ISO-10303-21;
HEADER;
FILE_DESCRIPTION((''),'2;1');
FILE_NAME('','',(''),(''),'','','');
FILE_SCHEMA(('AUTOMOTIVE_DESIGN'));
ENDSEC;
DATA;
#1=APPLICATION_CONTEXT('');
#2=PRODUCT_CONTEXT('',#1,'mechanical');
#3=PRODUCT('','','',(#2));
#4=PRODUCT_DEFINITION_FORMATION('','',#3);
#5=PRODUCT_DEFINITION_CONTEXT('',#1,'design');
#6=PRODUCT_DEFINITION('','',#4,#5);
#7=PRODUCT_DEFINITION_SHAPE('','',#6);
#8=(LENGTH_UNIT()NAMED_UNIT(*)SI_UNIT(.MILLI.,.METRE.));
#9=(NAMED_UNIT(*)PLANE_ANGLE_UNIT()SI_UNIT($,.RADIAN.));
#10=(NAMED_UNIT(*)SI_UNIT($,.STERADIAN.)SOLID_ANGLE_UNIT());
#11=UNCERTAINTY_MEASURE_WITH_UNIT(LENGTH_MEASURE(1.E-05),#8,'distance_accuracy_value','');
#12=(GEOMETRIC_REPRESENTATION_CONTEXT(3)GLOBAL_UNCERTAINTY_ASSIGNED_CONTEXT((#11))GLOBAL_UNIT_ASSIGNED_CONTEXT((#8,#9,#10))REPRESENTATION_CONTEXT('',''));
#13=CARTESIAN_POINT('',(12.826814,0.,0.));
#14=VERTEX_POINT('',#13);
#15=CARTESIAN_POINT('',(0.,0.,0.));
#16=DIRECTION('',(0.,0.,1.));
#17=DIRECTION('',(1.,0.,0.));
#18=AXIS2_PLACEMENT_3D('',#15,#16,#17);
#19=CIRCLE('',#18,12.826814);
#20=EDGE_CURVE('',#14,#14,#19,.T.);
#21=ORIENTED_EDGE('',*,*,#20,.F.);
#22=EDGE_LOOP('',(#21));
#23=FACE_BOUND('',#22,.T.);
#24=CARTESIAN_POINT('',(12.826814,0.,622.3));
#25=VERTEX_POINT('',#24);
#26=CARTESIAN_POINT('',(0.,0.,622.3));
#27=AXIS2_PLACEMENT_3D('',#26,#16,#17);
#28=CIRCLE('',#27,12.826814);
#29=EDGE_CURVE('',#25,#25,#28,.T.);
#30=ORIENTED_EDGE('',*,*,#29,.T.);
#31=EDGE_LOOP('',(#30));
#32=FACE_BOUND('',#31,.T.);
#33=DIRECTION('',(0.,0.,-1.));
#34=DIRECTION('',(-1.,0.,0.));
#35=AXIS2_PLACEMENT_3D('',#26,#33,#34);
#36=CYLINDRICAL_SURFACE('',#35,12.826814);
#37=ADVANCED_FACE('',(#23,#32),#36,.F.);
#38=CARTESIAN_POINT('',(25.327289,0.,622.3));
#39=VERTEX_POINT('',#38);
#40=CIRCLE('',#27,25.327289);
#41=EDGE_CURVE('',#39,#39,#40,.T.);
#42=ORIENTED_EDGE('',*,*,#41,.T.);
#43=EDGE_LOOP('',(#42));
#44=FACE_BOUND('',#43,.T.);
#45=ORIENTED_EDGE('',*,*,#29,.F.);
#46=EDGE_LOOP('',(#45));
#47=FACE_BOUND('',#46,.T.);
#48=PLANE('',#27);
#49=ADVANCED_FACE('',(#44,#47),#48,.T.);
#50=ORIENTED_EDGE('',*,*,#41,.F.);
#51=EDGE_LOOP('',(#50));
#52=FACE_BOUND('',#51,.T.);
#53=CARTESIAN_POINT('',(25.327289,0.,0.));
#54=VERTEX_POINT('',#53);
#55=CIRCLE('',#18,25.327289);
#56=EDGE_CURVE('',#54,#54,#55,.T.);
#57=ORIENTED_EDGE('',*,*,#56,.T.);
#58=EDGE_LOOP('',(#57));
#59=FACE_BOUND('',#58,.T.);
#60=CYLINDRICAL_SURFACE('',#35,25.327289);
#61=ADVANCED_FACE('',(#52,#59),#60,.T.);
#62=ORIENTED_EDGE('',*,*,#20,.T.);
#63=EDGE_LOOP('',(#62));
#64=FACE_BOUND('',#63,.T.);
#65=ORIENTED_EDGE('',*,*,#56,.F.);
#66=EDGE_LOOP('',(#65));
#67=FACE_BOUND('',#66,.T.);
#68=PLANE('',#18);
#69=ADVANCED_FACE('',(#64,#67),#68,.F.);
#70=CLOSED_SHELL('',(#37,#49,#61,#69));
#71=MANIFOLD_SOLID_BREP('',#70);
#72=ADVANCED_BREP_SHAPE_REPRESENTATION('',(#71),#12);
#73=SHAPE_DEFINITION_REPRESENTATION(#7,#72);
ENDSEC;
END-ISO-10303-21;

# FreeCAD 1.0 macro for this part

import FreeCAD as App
import Part
import Sketcher
Q = App.Units.Quantity

doc = App.newDocument("Part")
params = doc.addObject("Spreadsheet::Sheet", "Params")
for row, (alias, value) in enumerate([
    ("pad1_length", "24.5 in"),
], start=1):
    params.set(f"A{row}", alias)
    params.set(f"B{row}", "=" + value)
    params.setAlias(f"B{row}", alias)

body = doc.addObject("PartDesign::Body", "Body")

sketch1 = body.newObject("Sketcher::SketchObject", "Sketch")
sketch1.AttachmentSupport = (doc.getObject("XY_Plane"), [""])
sketch1.MapMode = "FlatFace"
sketch1.addGeometry([
    Part.Circle(App.Vector(0, 0, 0), App.Vector(0, 0, 1), 25),
    Part.Circle(App.Vector(0, 0, 0), App.Vector(0, 0, 1), 13),
], False)
sketch1.addConstraint([
    Sketcher.Constraint("Coincident", 0, 3, -1, 1),
    Sketcher.Constraint("Coincident", 1, 3, -1, 1),
    Sketcher.Constraint("Diameter", 0, Q("50.654579 mm")),
    Sketcher.Constraint("Diameter", 1, Q("25.653628 mm")),
])
pad1 = body.newObject("PartDesign::Pad", "Pad")
pad1.Profile = sketch1
pad1.setExpression("Length", "Params.pad1_length")

doc.recompute()
